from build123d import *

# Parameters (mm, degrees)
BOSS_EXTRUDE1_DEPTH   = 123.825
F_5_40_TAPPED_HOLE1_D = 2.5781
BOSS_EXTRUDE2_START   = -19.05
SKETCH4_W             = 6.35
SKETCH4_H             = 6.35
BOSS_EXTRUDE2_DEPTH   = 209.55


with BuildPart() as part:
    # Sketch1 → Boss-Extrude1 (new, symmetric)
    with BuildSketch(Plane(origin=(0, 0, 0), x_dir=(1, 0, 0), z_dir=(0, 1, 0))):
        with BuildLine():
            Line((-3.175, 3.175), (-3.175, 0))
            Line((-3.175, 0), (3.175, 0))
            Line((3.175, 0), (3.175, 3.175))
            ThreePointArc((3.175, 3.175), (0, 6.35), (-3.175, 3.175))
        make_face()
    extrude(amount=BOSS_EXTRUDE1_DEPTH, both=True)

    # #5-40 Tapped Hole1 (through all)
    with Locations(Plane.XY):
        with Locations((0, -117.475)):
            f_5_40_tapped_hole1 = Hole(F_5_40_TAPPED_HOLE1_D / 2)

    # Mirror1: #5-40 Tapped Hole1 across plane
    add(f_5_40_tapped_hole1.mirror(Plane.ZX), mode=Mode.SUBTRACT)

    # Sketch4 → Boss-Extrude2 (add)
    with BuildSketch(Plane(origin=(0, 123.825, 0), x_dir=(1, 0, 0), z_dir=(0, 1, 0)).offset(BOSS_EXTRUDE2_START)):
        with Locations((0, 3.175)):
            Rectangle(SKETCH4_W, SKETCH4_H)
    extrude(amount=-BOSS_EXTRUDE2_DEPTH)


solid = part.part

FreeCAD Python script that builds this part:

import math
import FreeCAD as App
import Part
import Sketcher

V = App.Vector
Q = App.Units.Quantity

doc = App.newDocument("Part")
body = doc.addObject("PartDesign::Body", "Body")

# Sketch on XZ plane
sketch1 = body.newObject("Sketcher::SketchObject", "Sketch")
sketch1.AttachmentSupport = (doc.getObject("XZ_Plane"), [""])
sketch1.MapMode = "FlatFace"
sketch1.addGeometry(Part.LineSegment(V(-3.2, -3.2, 0), V(-3.2, 0, 0)), False)
sketch1.addGeometry(Part.LineSegment(V(-3.2, 0, 0), V(3.2, 0, 0)), False)
sketch1.addGeometry(Part.LineSegment(V(3.2, 0, 0), V(3.2, -3.2, 0)), False)
sketch1.addGeometry(Part.ArcOfCircle(Part.Circle(V(0, -3.2, 0), V(0, 0, 1), 3.2), math.radians(180), math.radians(360)), False)
sketch1.addConstraint(Sketcher.Constraint("Coincident", 0, 2, 1, 1))
sketch1.addConstraint(Sketcher.Constraint("Coincident", 1, 2, 2, 1))
sketch1.addConstraint(Sketcher.Constraint("Tangent", 2, 2, 3, 2))
sketch1.addConstraint(Sketcher.Constraint("Tangent", 3, 1, 0, 1))
sketch1.addConstraint(Sketcher.Constraint("Vertical", 0))
sketch1.addConstraint(Sketcher.Constraint("Horizontal", 1))
sketch1.addConstraint(Sketcher.Constraint("Vertical", 2))
sketch1.addConstraint(Sketcher.Constraint("Symmetric", 0, 2, 1, 2, -1, 1))
sketch1.addConstraint(Sketcher.Constraint("Radius", 3, Q("0.125 in")))
sketch1.addConstraint(Sketcher.Constraint("DistanceY", 0, 1, 0, 2, Q("0.125 in")))
pad1 = body.newObject("PartDesign::Pad", "Pad")
pad1.Profile = sketch1
pad1.Length = Q("9.75 in")
pad1.Midplane = True

# Sketch on XY plane
sketch2 = body.newObject("Sketcher::SketchObject", "Sketch001")
sketch2.AttachmentSupport = (doc.getObject("XY_Plane"), [""])
sketch2.MapMode = "FlatFace"
sketch2.addGeometry(Part.Circle(V(0, -117.5, 0), V(0, 0, 1), 1.3), False)
sketch2.addConstraint(Sketcher.Constraint("PointOnObject", 0, 3, -2))
sketch2.addConstraint(Sketcher.Constraint("Diameter", 0, Q("0.1015 in")))
sketch2.addConstraint(Sketcher.Constraint("DistanceY", 0, 3, -1, 1, Q("4.625 in")))
doc.recompute()
hole = body.newObject("PartDesign::Hole", "Hole")
hole.Profile = sketch2
hole.ThreadType = "None"
hole.Diameter = Q("0.1015 in")
hole.DepthType = "ThroughAll"
doc.recompute()

mirrored = body.newObject("PartDesign::Mirrored", "Mirrored")
mirrored.Originals = [hole]
mirrored.MirrorPlane = (doc.getObject("XZ_Plane"), [""])
body.Tip = mirrored

# Sketch on XZ plane
sketch3 = body.newObject("Sketcher::SketchObject", "Sketch002")
sketch3.AttachmentSupport = (doc.getObject("XZ_Plane"), [""])
sketch3.MapMode = "FlatFace"
sketch3.AttachmentOffset = App.Placement(V(0, 0, -4.125 * 25.4), App.Rotation())
sketch3.addGeometry(Part.LineSegment(V(-3, -6, 0), V(-3, 0, 0)), False)
sketch3.addGeometry(Part.LineSegment(V(-3, 0, 0), V(3, 0, 0)), False)
sketch3.addGeometry(Part.LineSegment(V(3, 0, 0), V(3, -6, 0)), False)
sketch3.addGeometry(Part.LineSegment(V(3, -6, 0), V(-3, -6, 0)), False)
sketch3.addConstraint(Sketcher.Constraint("Coincident", 0, 2, 1, 1))
sketch3.addConstraint(Sketcher.Constraint("Coincident", 1, 2, 2, 1))
sketch3.addConstraint(Sketcher.Constraint("Coincident", 2, 2, 3, 1))
sketch3.addConstraint(Sketcher.Constraint("Coincident", 3, 2, 0, 1))
sketch3.addConstraint(Sketcher.Constraint("Vertical", 0))
sketch3.addConstraint(Sketcher.Constraint("Horizontal", 1))
sketch3.addConstraint(Sketcher.Constraint("Vertical", 2))
sketch3.addConstraint(Sketcher.Constraint("Horizontal", 3))
sketch3.addConstraint(Sketcher.Constraint("Symmetric", 0, 2, 1, 2, -1, 1))
sketch3.addConstraint(Sketcher.Constraint("Equal", 3, 0))
sketch3.addConstraint(Sketcher.Constraint("DistanceX", 1, 1, 1, 2, Q("0.25 in")))
pad2 = body.newObject("PartDesign::Pad", "Pad001")
pad2.Profile = sketch3
pad2.Length = Q("8.25 in")

doc.recompute()
